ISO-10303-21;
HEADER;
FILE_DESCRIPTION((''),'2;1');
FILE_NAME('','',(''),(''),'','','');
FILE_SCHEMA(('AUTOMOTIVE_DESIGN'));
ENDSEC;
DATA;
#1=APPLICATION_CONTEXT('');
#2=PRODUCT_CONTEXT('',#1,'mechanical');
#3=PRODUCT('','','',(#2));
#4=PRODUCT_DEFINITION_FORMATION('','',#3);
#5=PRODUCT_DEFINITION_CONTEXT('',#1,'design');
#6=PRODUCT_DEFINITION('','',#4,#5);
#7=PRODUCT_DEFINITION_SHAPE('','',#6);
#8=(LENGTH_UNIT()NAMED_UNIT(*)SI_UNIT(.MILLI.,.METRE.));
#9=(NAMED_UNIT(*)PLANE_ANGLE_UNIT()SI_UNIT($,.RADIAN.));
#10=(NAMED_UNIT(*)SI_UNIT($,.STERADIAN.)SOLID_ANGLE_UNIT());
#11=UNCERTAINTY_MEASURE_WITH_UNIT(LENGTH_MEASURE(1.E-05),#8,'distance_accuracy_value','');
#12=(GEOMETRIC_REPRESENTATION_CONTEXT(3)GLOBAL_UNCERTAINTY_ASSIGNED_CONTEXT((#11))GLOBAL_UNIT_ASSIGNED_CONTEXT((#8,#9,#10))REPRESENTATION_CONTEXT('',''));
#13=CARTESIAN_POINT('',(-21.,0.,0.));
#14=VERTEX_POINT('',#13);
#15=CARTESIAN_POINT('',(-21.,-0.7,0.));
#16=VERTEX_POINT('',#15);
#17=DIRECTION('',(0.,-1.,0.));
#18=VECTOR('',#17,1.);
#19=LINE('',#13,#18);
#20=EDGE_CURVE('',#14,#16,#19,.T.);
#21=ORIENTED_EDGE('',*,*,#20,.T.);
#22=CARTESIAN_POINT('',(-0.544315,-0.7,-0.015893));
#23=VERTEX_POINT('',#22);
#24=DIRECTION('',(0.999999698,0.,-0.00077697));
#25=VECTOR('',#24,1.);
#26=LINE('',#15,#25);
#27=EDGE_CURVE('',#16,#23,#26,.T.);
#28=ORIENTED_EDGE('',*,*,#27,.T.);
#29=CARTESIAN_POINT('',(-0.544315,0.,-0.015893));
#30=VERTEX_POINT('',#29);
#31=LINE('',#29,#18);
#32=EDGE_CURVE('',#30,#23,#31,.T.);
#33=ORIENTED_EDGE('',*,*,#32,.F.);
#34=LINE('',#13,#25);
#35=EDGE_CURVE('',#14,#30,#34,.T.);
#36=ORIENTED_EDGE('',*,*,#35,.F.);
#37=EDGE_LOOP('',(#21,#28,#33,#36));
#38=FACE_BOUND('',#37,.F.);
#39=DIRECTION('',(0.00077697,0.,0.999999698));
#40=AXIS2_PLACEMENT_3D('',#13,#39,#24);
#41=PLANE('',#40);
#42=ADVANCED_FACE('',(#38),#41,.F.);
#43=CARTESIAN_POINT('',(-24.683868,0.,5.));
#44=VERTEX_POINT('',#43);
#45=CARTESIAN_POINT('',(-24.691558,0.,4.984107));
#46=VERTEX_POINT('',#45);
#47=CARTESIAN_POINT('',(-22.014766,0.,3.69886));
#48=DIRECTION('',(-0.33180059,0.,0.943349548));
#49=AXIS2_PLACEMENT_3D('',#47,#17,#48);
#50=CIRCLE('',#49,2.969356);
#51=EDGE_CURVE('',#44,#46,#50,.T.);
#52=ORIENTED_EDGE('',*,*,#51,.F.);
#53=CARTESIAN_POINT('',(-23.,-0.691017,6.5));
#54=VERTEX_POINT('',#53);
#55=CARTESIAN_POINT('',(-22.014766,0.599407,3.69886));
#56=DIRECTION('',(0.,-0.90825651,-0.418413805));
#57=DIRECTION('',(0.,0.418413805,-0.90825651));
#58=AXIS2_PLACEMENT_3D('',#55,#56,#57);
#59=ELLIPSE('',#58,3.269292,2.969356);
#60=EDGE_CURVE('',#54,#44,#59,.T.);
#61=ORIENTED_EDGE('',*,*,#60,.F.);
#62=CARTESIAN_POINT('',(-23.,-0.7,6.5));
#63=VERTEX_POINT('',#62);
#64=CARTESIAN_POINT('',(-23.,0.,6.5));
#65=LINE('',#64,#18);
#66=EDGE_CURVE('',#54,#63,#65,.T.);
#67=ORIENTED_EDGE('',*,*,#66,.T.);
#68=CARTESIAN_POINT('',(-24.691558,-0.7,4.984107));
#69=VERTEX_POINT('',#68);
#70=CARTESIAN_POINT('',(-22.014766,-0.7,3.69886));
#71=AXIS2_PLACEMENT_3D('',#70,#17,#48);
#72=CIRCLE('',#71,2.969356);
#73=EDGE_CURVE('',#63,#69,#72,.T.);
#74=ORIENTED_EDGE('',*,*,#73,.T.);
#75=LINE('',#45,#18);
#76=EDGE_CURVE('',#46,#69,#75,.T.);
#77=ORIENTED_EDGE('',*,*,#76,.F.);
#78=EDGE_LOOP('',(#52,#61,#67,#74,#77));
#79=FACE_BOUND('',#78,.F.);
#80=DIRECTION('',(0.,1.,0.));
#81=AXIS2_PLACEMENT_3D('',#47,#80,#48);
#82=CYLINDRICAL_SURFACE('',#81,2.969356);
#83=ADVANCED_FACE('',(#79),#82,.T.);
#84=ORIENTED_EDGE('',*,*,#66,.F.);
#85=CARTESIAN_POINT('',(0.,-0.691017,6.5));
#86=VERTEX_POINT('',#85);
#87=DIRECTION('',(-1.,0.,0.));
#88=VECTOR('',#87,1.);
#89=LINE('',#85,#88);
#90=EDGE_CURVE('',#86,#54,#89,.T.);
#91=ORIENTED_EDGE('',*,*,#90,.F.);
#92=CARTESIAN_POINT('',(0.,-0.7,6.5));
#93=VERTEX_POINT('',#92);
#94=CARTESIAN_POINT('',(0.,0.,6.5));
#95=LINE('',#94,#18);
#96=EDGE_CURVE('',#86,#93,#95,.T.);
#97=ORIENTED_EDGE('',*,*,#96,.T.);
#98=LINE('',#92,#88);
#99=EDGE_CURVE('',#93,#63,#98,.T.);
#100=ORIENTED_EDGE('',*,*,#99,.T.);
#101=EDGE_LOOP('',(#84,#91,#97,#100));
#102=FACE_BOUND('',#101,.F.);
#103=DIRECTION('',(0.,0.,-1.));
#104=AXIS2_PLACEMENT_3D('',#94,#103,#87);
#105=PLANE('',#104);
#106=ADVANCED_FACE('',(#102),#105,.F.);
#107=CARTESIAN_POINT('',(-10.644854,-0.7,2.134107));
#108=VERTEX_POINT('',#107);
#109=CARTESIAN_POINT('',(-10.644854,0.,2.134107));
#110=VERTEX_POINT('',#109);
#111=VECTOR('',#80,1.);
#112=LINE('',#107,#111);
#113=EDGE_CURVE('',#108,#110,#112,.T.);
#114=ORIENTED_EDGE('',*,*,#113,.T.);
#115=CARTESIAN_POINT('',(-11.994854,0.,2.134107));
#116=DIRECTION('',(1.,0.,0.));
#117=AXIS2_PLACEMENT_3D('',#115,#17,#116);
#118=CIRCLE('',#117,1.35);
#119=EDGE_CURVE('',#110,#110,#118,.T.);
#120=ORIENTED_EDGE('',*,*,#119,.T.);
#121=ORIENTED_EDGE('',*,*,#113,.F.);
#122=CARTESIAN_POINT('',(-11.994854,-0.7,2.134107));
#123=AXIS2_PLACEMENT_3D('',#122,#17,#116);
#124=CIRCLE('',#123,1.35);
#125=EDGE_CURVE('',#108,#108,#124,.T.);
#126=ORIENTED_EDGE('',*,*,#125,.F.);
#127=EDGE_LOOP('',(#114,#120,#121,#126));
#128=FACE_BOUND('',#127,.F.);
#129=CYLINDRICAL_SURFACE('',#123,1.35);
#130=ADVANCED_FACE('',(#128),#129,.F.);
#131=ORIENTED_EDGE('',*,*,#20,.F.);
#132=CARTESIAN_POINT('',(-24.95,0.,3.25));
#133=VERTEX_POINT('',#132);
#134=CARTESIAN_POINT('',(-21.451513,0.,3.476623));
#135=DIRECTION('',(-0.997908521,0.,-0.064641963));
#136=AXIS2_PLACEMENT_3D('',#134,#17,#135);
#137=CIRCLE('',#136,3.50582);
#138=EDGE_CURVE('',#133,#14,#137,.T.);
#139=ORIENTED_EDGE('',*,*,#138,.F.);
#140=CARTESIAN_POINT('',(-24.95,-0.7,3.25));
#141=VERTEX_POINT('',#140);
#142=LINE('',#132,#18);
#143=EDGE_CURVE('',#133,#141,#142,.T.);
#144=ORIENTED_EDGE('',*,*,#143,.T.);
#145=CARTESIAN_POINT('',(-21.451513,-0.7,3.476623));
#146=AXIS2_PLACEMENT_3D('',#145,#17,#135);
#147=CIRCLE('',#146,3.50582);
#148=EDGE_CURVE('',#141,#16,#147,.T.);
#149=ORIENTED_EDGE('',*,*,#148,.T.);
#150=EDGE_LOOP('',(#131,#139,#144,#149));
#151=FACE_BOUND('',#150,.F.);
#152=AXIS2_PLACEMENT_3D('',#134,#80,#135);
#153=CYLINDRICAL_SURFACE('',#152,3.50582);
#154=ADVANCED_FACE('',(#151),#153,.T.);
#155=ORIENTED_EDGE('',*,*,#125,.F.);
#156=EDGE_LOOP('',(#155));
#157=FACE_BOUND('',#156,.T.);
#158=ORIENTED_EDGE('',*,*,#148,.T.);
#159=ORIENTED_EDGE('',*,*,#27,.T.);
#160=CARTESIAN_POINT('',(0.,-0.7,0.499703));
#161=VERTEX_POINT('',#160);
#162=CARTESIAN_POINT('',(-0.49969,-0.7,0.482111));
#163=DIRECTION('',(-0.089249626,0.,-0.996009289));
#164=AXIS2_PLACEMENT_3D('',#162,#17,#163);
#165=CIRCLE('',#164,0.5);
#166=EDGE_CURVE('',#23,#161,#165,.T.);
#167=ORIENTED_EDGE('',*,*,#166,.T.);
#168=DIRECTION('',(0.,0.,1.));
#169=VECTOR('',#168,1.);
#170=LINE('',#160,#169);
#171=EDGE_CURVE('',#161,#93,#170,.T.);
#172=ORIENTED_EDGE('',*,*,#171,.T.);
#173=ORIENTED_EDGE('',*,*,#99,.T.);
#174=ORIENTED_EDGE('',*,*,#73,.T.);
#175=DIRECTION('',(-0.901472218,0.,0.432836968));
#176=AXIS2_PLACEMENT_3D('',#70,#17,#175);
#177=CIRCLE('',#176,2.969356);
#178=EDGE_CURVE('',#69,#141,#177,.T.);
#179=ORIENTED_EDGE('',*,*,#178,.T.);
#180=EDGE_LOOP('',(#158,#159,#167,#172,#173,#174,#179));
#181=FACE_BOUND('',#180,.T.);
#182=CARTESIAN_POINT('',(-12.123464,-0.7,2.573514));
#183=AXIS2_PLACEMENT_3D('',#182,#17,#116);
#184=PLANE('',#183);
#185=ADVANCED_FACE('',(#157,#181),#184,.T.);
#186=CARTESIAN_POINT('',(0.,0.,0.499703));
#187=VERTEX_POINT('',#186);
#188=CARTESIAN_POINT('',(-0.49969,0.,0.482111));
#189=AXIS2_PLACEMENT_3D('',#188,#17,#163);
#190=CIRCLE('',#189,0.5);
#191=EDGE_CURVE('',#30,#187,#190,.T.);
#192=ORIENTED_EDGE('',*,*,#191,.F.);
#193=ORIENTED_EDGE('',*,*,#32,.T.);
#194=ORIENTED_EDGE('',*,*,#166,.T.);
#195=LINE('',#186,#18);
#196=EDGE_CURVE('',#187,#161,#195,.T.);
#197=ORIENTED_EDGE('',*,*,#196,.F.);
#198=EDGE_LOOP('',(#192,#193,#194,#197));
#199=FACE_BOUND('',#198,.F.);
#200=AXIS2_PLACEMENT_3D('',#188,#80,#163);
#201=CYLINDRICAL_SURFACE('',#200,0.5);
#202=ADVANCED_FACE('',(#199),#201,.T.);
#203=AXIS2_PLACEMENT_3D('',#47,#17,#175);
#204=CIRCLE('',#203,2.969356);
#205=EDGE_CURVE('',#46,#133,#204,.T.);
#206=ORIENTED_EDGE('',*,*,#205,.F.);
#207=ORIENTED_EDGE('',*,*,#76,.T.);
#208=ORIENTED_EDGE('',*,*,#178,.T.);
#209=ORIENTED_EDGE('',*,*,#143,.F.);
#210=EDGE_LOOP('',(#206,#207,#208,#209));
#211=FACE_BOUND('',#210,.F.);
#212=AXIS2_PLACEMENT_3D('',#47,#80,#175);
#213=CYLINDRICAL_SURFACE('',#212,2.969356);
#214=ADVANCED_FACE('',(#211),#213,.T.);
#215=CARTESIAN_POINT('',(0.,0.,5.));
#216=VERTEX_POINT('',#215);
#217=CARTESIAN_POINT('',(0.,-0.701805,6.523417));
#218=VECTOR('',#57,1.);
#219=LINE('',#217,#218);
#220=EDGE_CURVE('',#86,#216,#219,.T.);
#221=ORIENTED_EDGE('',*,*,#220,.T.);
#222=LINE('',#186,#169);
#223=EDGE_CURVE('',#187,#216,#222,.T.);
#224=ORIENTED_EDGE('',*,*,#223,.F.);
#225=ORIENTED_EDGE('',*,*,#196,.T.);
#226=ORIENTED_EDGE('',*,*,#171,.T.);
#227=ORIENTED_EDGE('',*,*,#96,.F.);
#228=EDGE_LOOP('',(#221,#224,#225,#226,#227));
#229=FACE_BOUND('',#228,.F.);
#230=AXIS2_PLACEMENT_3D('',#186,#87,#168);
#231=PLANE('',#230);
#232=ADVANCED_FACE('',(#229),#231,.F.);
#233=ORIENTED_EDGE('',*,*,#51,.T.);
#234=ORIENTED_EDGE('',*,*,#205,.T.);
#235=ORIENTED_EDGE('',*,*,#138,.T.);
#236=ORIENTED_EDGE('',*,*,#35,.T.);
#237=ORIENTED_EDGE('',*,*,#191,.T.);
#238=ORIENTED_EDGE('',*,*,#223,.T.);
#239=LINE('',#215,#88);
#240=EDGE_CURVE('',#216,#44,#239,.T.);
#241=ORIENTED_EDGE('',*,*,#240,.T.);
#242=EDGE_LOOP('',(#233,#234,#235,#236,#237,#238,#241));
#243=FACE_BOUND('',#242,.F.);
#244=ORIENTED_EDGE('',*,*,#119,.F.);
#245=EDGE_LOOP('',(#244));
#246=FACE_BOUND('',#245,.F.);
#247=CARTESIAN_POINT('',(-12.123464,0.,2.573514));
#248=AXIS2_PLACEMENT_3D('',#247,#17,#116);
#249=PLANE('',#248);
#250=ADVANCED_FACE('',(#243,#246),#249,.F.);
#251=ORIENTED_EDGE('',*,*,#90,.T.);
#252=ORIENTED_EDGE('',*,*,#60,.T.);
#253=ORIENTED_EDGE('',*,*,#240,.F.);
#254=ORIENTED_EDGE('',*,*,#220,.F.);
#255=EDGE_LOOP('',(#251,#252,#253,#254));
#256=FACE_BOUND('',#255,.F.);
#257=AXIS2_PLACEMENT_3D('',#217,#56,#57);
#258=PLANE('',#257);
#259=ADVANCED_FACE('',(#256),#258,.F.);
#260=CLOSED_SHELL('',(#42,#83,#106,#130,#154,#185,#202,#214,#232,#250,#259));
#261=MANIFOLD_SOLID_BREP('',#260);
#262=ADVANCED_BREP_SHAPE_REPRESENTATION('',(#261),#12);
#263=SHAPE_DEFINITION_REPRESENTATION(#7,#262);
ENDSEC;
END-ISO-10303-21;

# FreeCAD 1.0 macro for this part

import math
import FreeCAD as App
import Part
import Sketcher
from FreeCAD import Vector


def add_polygon(sketch, points):
    """Adds a closed chain of lines whose ends are joined by coincident constraints."""
    first, n = sketch.GeometryCount, len(points)
    for a, b in zip(points, points[1:] + points[:1]):
        sketch.addGeometry(Part.LineSegment(App.Vector(*a, 0), App.Vector(*b, 0)), False)
    for i in range(n):
        sketch.addConstraint(Sketcher.Constraint("Coincident", first + i, 2, first + (i + 1) % n, 1))

doc = App.newDocument("Part")
body = doc.addObject("PartDesign::Body", "Body")

sketch1 = body.newObject("Sketcher::SketchObject", "Sketch")
sketch1.AttachmentSupport = (doc.getObject("XZ_Plane"), [""])
sketch1.MapMode = "FlatFace"
sketch1.addGeometry([
    Part.LineSegment(Vector(-21, 0, 0), Vector(-0.5, 0, 0)),
    Part.ArcOfCircle(Part.Circle(Vector(-0.5, 0.5, 0), Vector(0, 0, 1), 0.5), math.radians(-95), math.radians(2)),
    Part.LineSegment(Vector(0, 0.5, 0), Vector(0, 6.5, 0)),
    Part.LineSegment(Vector(0, 6.5, 0), Vector(-23, 6.5, 0)),
    Part.ArcOfCircle(Part.Circle(Vector(-22, 3.7, 0), Vector(0, 0, 1), 3), math.radians(109), math.radians(154)),
    Part.ArcOfCircle(Part.Circle(Vector(-22, 3.7, 0), Vector(0, 0, 1), 3), math.radians(154), math.radians(189)),
    Part.ArcOfCircle(Part.Circle(Vector(-21.5, 3.5, 0), Vector(0, 0, 1), 3.5), math.radians(-176), math.radians(-83)),
], False)
sketch1.addConstraint([
    Sketcher.Constraint("Coincident", 0, 2, 1, 1),
    Sketcher.Constraint("Coincident", 1, 2, 2, 1),
    Sketcher.Constraint("Coincident", 2, 2, 3, 1),
    Sketcher.Constraint("Coincident", 3, 2, 4, 1),
    Sketcher.Constraint("Tangent", 4, 2, 5, 1),
    Sketcher.Constraint("Coincident", 5, 2, 6, 1),
    Sketcher.Constraint("Coincident", 6, 2, 0, 1),
    Sketcher.Constraint("Vertical", 2),
    Sketcher.Constraint("Horizontal", 3),
    Sketcher.Constraint("Equal", 4, 5),
    Sketcher.Constraint("PointOnObject", 1, 2, -2),
    Sketcher.Constraint("PointOnObject", 6, 2, -1),
    Sketcher.Constraint("Radius", 1, 0.5),
    Sketcher.Constraint("DistanceX", 3, 2, 3, 1, 23.0),
    Sketcher.Constraint("DistanceX", 6, 2, -1, 1, 21.0),
    Sketcher.Constraint("DistanceY", -1, 1, 2, 2, 6.5),
    Sketcher.Constraint("DistanceX", 5, 2, -1, 1, 24.95),
    Sketcher.Constraint("DistanceY", -1, 1, 5, 2, 3.25),
    Sketcher.Constraint("Radius", 6, 3.50582),
    Sketcher.Constraint("Radius", 4, 2.969356),
    Sketcher.Constraint("Distance", 0, 20.455691),
    Sketcher.Constraint("DistanceY", 2, 1, 2, 2, 6.000297),
    Sketcher.Constraint("DistanceX", 1, 3, -1, 1, 0.49969),
    Sketcher.Constraint("DistanceX", 4, 2, 4, 3, 2.676792),
])
pad1 = body.newObject("PartDesign::Pad", "Pad")
pad1.Profile = sketch1
pad1.Length = 0.7

sketch2 = body.newObject("Sketcher::SketchObject", "Sketch001")
sketch2.AttachmentSupport = (doc.getObject("XZ_Plane"), [""])
sketch2.MapMode = "FlatFace"
sketch2.AttachmentOffset = App.Placement(Vector(0, 0, 0.7), App.Rotation())
sketch2.addGeometry(Part.Circle(Vector(-12, 2.1, 0), Vector(0, 0, 1), 1.4), False)
sketch2.addConstraint([
    Sketcher.Constraint("Diameter", 0, 2.7),
    Sketcher.Constraint("DistanceX", 0, 3, -1, 1, 11.994854),
    Sketcher.Constraint("DistanceY", -1, 1, 0, 3, 2.134107),
])
pocket1 = body.newObject("PartDesign::Pocket", "Pocket")
pocket1.Profile = sketch2
pocket1.Length = 25

sketch3 = body.newObject("Sketcher::SketchObject", "Sketch002")
sketch3.AttachmentSupport = (doc.getObject("YZ_Plane"), [""])
sketch3.MapMode = "FlatFace"
add_polygon(sketch3, [(-0.7, 6.5), (0, 5), (0, 6.5)])
sketch3.addConstraint([
    Sketcher.Constraint("Vertical", 1),
    Sketcher.Constraint("PointOnObject", 0, 2, -2),
    Sketcher.Constraint("DistanceY", -1, 1, 0, 2, 5.0),
    Sketcher.Constraint("DistanceY", 1, 1, 1, 2, 1.521099),
    Sketcher.Constraint("Distance", 0, 1.677298),
    Sketcher.Constraint("Distance", 2, 0.701808),
])
pocket2 = body.newObject("PartDesign::Pocket", "Pocket001")
pocket2.Profile = sketch3
pocket2.Length = 25

doc.recompute()
